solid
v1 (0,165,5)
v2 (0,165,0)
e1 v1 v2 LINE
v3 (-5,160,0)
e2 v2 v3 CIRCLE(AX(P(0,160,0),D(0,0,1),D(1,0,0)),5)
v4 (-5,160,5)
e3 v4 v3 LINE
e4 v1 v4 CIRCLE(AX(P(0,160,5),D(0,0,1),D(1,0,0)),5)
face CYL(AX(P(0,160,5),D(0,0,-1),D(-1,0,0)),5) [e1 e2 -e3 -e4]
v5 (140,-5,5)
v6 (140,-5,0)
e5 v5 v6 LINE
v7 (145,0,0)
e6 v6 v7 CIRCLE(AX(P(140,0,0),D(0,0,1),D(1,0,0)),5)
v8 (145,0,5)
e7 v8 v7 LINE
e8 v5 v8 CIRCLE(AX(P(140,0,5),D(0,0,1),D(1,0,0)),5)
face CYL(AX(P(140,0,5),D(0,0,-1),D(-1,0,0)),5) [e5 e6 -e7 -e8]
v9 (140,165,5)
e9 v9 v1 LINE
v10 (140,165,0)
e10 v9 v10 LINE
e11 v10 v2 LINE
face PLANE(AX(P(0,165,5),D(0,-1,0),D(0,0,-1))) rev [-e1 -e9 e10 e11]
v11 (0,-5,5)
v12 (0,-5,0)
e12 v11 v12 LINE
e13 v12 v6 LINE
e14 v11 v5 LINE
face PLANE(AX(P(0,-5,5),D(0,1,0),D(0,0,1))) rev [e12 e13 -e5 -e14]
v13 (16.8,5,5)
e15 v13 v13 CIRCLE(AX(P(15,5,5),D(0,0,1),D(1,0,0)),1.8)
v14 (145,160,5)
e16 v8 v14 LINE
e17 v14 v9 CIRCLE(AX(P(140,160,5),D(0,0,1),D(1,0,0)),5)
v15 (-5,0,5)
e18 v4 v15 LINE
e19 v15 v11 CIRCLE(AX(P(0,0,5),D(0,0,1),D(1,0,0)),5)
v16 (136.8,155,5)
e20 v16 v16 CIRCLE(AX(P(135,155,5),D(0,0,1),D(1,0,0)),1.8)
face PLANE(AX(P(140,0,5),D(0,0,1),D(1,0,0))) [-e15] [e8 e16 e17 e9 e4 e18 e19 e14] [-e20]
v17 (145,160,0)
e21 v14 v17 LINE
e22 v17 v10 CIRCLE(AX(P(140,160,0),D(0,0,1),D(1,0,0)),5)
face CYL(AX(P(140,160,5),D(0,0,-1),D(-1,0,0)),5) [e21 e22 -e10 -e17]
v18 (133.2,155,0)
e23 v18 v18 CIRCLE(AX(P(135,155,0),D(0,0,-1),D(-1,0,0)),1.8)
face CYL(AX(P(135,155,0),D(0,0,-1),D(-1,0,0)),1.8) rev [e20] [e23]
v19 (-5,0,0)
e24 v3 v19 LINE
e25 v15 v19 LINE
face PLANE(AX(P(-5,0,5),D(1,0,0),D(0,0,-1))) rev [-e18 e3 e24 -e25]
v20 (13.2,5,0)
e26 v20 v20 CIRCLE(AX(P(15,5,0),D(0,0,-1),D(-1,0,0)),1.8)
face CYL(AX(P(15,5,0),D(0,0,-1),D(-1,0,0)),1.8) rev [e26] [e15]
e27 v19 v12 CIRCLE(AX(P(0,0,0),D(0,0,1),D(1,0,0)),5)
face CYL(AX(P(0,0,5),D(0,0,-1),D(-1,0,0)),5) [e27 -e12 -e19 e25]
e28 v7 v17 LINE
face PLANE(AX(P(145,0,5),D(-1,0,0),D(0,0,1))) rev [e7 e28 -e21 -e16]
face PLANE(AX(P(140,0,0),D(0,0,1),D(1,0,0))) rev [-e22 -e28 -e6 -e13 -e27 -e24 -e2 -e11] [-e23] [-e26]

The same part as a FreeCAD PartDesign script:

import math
import FreeCAD as App
import Part
import Sketcher

doc = App.newDocument("Part")
body = doc.addObject("PartDesign::Body", "Body")

# Sketch on XY plane
sketch1 = body.newObject("Sketcher::SketchObject", "Sketch")
sketch1.AttachmentSupport = (doc.getObject("XY_Plane"), [""])
sketch1.MapMode = "FlatFace"
sketch1.addGeometry([
    Part.LineSegment(App.Vector(0, -5, 0), App.Vector(140, -5, 0)),  # 0
    Part.ArcOfCircle(Part.Circle(App.Vector(140, 0, 0), App.Vector(0, 0, 1), 5), math.radians(-90), math.radians(0)),  # 1
    Part.LineSegment(App.Vector(145, 0, 0), App.Vector(145, 160, 0)),  # 2
    Part.ArcOfCircle(Part.Circle(App.Vector(140, 160, 0), App.Vector(0, 0, 1), 5), math.radians(0), math.radians(90)),  # 3
    Part.LineSegment(App.Vector(140, 165, 0), App.Vector(0, 165, 0)),  # 4
    Part.ArcOfCircle(Part.Circle(App.Vector(0, 160, 0), App.Vector(0, 0, 1), 5), math.radians(90), math.radians(180)),  # 5
    Part.LineSegment(App.Vector(-5, 160, 0), App.Vector(-5, 0, 0)),  # 6
    Part.ArcOfCircle(Part.Circle(App.Vector(0, 0, 0), App.Vector(0, 0, 1), 5), math.radians(180), math.radians(270)),  # 7
], False)
sketch1.addConstraint([
    Sketcher.Constraint("Tangent", 0, 2, 1, 1),
    Sketcher.Constraint("Tangent", 1, 2, 2, 1),
    Sketcher.Constraint("Tangent", 2, 2, 3, 1),
    Sketcher.Constraint("Tangent", 3, 2, 4, 1),
    Sketcher.Constraint("Tangent", 4, 2, 5, 1),
    Sketcher.Constraint("Tangent", 5, 2, 6, 1),
    Sketcher.Constraint("Tangent", 6, 2, 7, 1),
    Sketcher.Constraint("Tangent", 7, 2, 0, 1),
    Sketcher.Constraint("Horizontal", 0),
    Sketcher.Constraint("Vertical", 2),
    Sketcher.Constraint("Horizontal", 4),
    Sketcher.Constraint("Vertical", 6),
    Sketcher.Constraint("Coincident", 7, 3, -1, 1),
    Sketcher.Constraint("Equal", 1, 3),
    Sketcher.Constraint("Equal", 3, 5),
    Sketcher.Constraint("Equal", 5, 7),
    Sketcher.Constraint("Radius", 1, 5.0),
    Sketcher.Constraint("DistanceX", 0, 1, 0, 2, 140.0),
    Sketcher.Constraint("DistanceY", 2, 1, 2, 2, 160.0),
])
pad1 = body.newObject("PartDesign::Pad", "Pad")
pad1.Profile = sketch1
pad1.Length = 5

# Sketch on XY plane
sketch2 = body.newObject("Sketcher::SketchObject", "Sketch001")
sketch2.AttachmentSupport = (doc.getObject("XY_Plane"), [""])
sketch2.MapMode = "FlatFace"
sketch2.addGeometry([
    Part.Circle(App.Vector(135, 155, 0), App.Vector(0, 0, 1), 1.8),
    Part.Circle(App.Vector(15, 5, 0), App.Vector(0, 0, 1), 1.8),
], False)
sketch2.addConstraint([
    Sketcher.Constraint("Equal", 0, 1),
    Sketcher.Constraint("Diameter", 0, 3.6),
    Sketcher.Constraint("DistanceX", -1, 1, 0, 3, 135.0),
    Sketcher.Constraint("DistanceY", -1, 1, 0, 3, 155.0),
    Sketcher.Constraint("DistanceX", -1, 1, 1, 3, 15.0),
    Sketcher.Constraint("DistanceY", -1, 1, 1, 3, 5.0),
])
doc.recompute()
hole = body.newObject("PartDesign::Hole", "Hole")
hole.Profile = sketch2
hole.ThreadType = "None"
hole.Diameter = 3.6
hole.DepthType = "Dimension"
hole.Depth = 15
hole.DrillPoint = "Angled"
hole.DrillPointAngle = 118
hole.Reversed = True

doc.recompute()
